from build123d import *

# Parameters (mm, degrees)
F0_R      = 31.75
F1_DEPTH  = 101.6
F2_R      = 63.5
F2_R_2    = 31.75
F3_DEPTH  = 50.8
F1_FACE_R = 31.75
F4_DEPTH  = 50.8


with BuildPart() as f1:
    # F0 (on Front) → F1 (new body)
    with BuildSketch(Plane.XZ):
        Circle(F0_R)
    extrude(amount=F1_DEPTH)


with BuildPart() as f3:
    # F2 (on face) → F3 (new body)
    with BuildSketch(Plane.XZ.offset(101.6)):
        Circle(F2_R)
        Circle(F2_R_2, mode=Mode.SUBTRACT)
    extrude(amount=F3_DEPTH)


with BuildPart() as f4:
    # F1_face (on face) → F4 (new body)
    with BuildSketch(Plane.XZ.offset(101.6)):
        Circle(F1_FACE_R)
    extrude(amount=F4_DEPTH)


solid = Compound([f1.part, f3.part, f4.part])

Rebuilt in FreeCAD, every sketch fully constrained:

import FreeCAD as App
import Part
import Sketcher
Q = App.Units.Quantity

doc = App.newDocument("Part")
body = doc.addObject("PartDesign::Body", "Body")

# Sketch on XZ plane
sketch1 = doc.addObject("Sketcher::SketchObject", "Sketch")
body.addObject(sketch1)
sketch1.AttachmentSupport = (doc.XZ_Plane, [""])
sketch1.MapMode = "FlatFace"
sketch1.addGeometry(Part.Circle(App.Vector(0, 0, 0), App.Vector(0, 0, 1), 32), False)
sketch1.addConstraint(Sketcher.Constraint("Coincident", 0, 3, -1, 1))
sketch1.addConstraint(Sketcher.Constraint("Diameter", 0, Q("2.5 in")))
pad1 = doc.addObject("PartDesign::Pad", "Pad")
body.addObject(pad1)
pad1.Profile = sketch1
pad1.Length = Q("4 in")
body2 = doc.addObject("PartDesign::Body", "Body001")

# Sketch on XZ plane
sketch2 = doc.addObject("Sketcher::SketchObject", "Sketch001")
body2.addObject(sketch2)
sketch2.AttachmentSupport = (doc.getObject("XZ_Plane001"), [""])
sketch2.MapMode = "FlatFace"
sketch2.AttachmentOffset = App.Placement(App.Vector(0, 0, 4 * 25.4), App.Rotation())
sketch2.addGeometry(Part.Circle(App.Vector(0, 0, 0), App.Vector(0, 0, 1), 64), False)
sketch2.addGeometry(Part.Circle(App.Vector(0, 0, 0), App.Vector(0, 0, 1), 32), False)
sketch2.addConstraint(Sketcher.Constraint("Coincident", 0, 3, -1, 1))
sketch2.addConstraint(Sketcher.Constraint("Coincident", 1, 3, -1, 1))
sketch2.addConstraint(Sketcher.Constraint("Diameter", 0, Q("5 in")))
sketch2.addConstraint(Sketcher.Constraint("Diameter", 1, Q("2.5 in")))
pad2 = doc.addObject("PartDesign::Pad", "Pad001")
body2.addObject(pad2)
pad2.Profile = sketch2
pad2.Length = Q("2 in")
body3 = doc.addObject("PartDesign::Body", "Body002")

# Sketch on XZ plane
sketch3 = doc.addObject("Sketcher::SketchObject", "Sketch002")
body3.addObject(sketch3)
sketch3.AttachmentSupport = (doc.getObject("XZ_Plane002"), [""])
sketch3.MapMode = "FlatFace"
sketch3.AttachmentOffset = App.Placement(App.Vector(0, 0, 4 * 25.4), App.Rotation())
sketch3.addGeometry(Part.Circle(App.Vector(0, 0, 0), App.Vector(0, 0, 1), 32), False)
sketch3.addConstraint(Sketcher.Constraint("Coincident", 0, 3, -1, 1))
sketch3.addConstraint(Sketcher.Constraint("Diameter", 0, Q("2.5 in")))
pad3 = doc.addObject("PartDesign::Pad", "Pad002")
body3.addObject(pad3)
pad3.Profile = sketch3
pad3.Length = Q("2 in")

doc.recompute()
